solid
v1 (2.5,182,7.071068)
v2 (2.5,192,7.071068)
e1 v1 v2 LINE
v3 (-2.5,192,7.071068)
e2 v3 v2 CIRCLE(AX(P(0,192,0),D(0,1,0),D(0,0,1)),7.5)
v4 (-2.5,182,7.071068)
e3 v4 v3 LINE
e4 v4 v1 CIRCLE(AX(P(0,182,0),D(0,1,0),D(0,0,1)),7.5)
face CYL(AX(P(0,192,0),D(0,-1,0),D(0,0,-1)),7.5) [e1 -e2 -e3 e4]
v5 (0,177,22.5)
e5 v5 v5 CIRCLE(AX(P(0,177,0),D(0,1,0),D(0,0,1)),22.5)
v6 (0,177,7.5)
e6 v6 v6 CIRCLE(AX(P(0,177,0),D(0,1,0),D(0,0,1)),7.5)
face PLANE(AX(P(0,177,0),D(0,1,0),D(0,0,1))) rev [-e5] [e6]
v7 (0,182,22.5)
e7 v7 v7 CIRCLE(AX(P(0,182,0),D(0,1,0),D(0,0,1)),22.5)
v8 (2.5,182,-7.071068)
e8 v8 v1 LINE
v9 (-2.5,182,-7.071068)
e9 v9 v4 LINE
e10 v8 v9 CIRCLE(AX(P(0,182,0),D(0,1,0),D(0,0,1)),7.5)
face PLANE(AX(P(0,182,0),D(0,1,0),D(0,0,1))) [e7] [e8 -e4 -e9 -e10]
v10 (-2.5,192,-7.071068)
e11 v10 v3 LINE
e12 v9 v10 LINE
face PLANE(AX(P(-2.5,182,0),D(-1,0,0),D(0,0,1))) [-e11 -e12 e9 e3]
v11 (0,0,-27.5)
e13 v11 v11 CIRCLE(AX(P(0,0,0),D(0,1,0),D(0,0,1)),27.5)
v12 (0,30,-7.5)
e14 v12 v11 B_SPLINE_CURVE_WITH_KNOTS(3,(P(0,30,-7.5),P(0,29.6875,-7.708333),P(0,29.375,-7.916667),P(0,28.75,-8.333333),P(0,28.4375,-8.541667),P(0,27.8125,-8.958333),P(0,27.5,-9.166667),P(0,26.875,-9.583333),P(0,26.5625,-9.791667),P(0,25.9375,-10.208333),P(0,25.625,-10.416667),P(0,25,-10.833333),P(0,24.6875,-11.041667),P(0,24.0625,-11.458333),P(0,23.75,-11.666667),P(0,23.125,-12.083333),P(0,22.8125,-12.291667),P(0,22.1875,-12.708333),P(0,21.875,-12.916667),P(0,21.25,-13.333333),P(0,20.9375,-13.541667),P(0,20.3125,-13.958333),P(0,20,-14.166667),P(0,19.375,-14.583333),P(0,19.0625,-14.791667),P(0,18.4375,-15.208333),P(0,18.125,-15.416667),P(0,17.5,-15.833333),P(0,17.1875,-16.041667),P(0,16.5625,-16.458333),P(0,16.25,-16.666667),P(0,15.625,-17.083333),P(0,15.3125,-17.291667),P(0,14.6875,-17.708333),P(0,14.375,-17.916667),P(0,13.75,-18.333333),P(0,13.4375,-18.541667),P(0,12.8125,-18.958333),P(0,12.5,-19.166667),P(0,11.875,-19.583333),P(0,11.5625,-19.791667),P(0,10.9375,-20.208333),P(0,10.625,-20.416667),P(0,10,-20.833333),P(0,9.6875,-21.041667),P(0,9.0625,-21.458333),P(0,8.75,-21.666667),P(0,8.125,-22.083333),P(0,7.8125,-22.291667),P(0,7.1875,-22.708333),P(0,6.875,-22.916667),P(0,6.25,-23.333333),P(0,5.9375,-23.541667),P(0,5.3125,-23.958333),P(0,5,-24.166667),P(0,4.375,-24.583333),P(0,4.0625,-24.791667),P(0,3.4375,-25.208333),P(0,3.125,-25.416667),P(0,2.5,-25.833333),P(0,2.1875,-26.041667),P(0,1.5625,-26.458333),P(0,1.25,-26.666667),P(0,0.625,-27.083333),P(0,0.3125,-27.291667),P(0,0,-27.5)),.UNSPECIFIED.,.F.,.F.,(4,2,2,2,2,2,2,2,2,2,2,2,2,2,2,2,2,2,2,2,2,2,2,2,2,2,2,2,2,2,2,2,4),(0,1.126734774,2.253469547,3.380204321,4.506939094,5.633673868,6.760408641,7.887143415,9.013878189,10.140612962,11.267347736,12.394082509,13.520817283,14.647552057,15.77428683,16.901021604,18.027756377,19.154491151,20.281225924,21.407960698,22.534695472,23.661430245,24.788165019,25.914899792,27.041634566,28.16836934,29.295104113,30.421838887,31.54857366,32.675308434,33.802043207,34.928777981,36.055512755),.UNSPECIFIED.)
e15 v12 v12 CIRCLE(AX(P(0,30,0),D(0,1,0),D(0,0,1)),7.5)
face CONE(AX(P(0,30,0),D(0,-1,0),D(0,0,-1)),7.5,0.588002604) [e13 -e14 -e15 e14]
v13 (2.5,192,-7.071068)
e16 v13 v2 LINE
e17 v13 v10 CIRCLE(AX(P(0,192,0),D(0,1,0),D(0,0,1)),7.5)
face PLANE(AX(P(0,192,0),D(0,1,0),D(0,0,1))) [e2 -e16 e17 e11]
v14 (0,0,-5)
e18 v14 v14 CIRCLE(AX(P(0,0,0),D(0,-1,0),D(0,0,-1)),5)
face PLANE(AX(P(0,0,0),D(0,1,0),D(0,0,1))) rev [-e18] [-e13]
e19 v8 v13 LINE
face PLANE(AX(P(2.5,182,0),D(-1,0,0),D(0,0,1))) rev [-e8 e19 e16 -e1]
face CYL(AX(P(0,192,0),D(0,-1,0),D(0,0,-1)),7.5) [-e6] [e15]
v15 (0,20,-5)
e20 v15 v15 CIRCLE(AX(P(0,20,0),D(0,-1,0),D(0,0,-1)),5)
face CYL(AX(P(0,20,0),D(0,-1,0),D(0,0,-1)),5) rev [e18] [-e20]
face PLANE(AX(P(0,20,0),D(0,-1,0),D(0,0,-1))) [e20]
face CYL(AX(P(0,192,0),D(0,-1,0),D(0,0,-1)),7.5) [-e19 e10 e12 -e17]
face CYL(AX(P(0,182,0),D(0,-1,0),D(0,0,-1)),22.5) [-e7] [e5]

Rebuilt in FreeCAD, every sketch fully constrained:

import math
import FreeCAD as App
import Part
import Sketcher
from FreeCAD import Vector

doc = App.newDocument("Part")
params = doc.addObject("Spreadsheet::Sheet", "Params")
for row, (alias, value) in enumerate([
    ("sketch1_diameter", "15 mm"),
    ("sketch2_diameter", "55 mm"),
    ("sketch3_diameter", "15 mm"),
    ("pad1_length", "162 mm"),
    ("sketch4_diameter", "45 mm"),
    ("pad2_length", "5 mm"),
    ("sketch5_radius", "7.5 mm"),
    ("pocket1_length", "10 mm"),
    ("sketch6_diameter", "10 mm"),
    ("pocket2_length", "20 mm"),
], start=1):
    params.set(f"A{row}", alias)
    params.set(f"B{row}", "=" + value)
    params.setAlias(f"B{row}", alias)

body = doc.addObject("PartDesign::Body", "Body")

# Sketch on XZ plane
sketch1 = body.newObject("Sketcher::SketchObject", "Sketch")
sketch1.AttachmentSupport = (doc.getObject("XZ_Plane"), [""])
sketch1.MapMode = "FlatFace"
sketch1.AttachmentOffset = App.Placement(Vector(0, 0, -30), App.Rotation())
sketch1.addGeometry(Part.Circle(Vector(0, 0, 0), Vector(0, 0, 1), 8), False)
sketch1.addConstraint([
    Sketcher.Constraint("Coincident", 0, 3, -1, 1),
    Sketcher.Constraint("Diameter", 0, 15.0),
])
sketch1.setExpression("Constraints[1]", "Params.sketch1_diameter")

# Sketch on XZ plane
sketch2 = body.newObject("Sketcher::SketchObject", "Sketch001")
sketch2.AttachmentSupport = (doc.getObject("XZ_Plane"), [""])
sketch2.MapMode = "FlatFace"
sketch2.addGeometry(Part.Circle(Vector(0, 0, 0), Vector(0, 0, 1), 28), False)
sketch2.addConstraint([
    Sketcher.Constraint("Coincident", 0, 3, -1, 1),
    Sketcher.Constraint("Diameter", 0, 55.0),
])
sketch2.setExpression("Constraints[1]", "Params.sketch2_diameter")

additiveloft = body.newObject("PartDesign::AdditiveLoft", "AdditiveLoft")
additiveloft.Profile = sketch1
additiveloft.Sections = [sketch2]

# Sketch on XZ plane
sketch3 = body.newObject("Sketcher::SketchObject", "Sketch002")
sketch3.AttachmentSupport = (doc.getObject("XZ_Plane"), [""])
sketch3.MapMode = "FlatFace"
sketch3.AttachmentOffset = App.Placement(Vector(0, 0, -30), App.Rotation())
sketch3.addGeometry(Part.Circle(Vector(0, 0, 0), Vector(0, 0, 1), 8), False)
sketch3.addConstraint([
    Sketcher.Constraint("Coincident", 0, 3, -1, 1),
    Sketcher.Constraint("Diameter", 0, 15.0),
])
sketch3.setExpression("Constraints[1]", "Params.sketch3_diameter")
pad1 = body.newObject("PartDesign::Pad", "Pad")
pad1.Profile = sketch3
pad1.setExpression("Length", "Params.pad1_length")
pad1.Reversed = True

# Sketch on XZ plane
sketch4 = body.newObject("Sketcher::SketchObject", "Sketch003")
sketch4.AttachmentSupport = (doc.getObject("XZ_Plane"), [""])
sketch4.MapMode = "FlatFace"
sketch4.AttachmentOffset = App.Placement(Vector(0, 0, -177), App.Rotation())
sketch4.addGeometry(Part.Circle(Vector(0, 0, 0), Vector(0, 0, 1), 22), False)
sketch4.addConstraint([
    Sketcher.Constraint("Coincident", 0, 3, -1, 1),
    Sketcher.Constraint("Diameter", 0, 45.0),
])
sketch4.setExpression("Constraints[1]", "Params.sketch4_diameter")
pad2 = body.newObject("PartDesign::Pad", "Pad001")
pad2.Profile = sketch4
pad2.setExpression("Length", "Params.pad2_length")
pad2.Reversed = True

# Sketch on XZ plane
sketch5 = body.newObject("Sketcher::SketchObject", "Sketch004")
sketch5.AttachmentSupport = (doc.getObject("XZ_Plane"), [""])
sketch5.MapMode = "FlatFace"
sketch5.AttachmentOffset = App.Placement(Vector(0, 0, -182), App.Rotation())
sketch5.addGeometry([
    Part.ArcOfCircle(Part.Circle(Vector(0, 0, 0), Vector(0, 0, 1), 8), math.radians(-71), math.radians(0)),  # 0
    Part.LineSegment(Vector(2, -7, 0), Vector(2, 7, 0)),  # 1
    Part.ArcOfCircle(Part.Circle(Vector(0, 0, 0), Vector(0, 0, 1), 8), math.radians(0), math.radians(71)),  # 2
    Part.LineSegment(Vector(-2, 7, 0), Vector(-2, -7, 0)),  # 3
    Part.ArcOfCircle(Part.Circle(Vector(0, 0, 0), Vector(0, 0, 1), 8), math.radians(109), math.radians(251)),  # 4
], False)
sketch5.addConstraint([
    Sketcher.Constraint("Coincident", 0, 1, 1, 1),
    Sketcher.Constraint("Coincident", 1, 2, 2, 2),
    Sketcher.Constraint("Tangent", 2, 1, 0, 2),
    Sketcher.Constraint("Coincident", 3, 1, 4, 1),
    Sketcher.Constraint("Coincident", 4, 2, 3, 2),
    Sketcher.Constraint("Vertical", 1),
    Sketcher.Constraint("Vertical", 3),
    Sketcher.Constraint("Coincident", 0, 3, -1, 1),
    Sketcher.Constraint("Coincident", 4, 3, -1, 1),
    Sketcher.Constraint("Equal", 0, 2),
    Sketcher.Constraint("Equal", 2, 4),
    Sketcher.Constraint("PointOnObject", 2, 1, -1),
    Sketcher.Constraint("Horizontal", 1, 2, 3, 1),
    Sketcher.Constraint("Radius", 0, 7.5),
    Sketcher.Constraint("DistanceX", 0, 1, 2, 1, 5.0),
])
sketch5.setExpression("Constraints[13]", "Params.sketch5_radius")
pocket1 = body.newObject("PartDesign::Pocket", "Pocket")
pocket1.Profile = sketch5
pocket1.setExpression("Length", "Params.pocket1_length")

# Sketch on XZ plane
sketch6 = body.newObject("Sketcher::SketchObject", "Sketch005")
sketch6.AttachmentSupport = (doc.getObject("XZ_Plane"), [""])
sketch6.MapMode = "FlatFace"
sketch6.addGeometry(Part.Circle(Vector(0, 0, 0), Vector(0, 0, 1), 5), False)
sketch6.addConstraint([
    Sketcher.Constraint("Coincident", 0, 3, -1, 1),
    Sketcher.Constraint("Diameter", 0, 10.0),
])
sketch6.setExpression("Constraints[1]", "Params.sketch6_diameter")
pocket2 = body.newObject("PartDesign::Pocket", "Pocket001")
pocket2.Profile = sketch6
pocket2.setExpression("Length", "Params.pocket2_length")

doc.recompute()
